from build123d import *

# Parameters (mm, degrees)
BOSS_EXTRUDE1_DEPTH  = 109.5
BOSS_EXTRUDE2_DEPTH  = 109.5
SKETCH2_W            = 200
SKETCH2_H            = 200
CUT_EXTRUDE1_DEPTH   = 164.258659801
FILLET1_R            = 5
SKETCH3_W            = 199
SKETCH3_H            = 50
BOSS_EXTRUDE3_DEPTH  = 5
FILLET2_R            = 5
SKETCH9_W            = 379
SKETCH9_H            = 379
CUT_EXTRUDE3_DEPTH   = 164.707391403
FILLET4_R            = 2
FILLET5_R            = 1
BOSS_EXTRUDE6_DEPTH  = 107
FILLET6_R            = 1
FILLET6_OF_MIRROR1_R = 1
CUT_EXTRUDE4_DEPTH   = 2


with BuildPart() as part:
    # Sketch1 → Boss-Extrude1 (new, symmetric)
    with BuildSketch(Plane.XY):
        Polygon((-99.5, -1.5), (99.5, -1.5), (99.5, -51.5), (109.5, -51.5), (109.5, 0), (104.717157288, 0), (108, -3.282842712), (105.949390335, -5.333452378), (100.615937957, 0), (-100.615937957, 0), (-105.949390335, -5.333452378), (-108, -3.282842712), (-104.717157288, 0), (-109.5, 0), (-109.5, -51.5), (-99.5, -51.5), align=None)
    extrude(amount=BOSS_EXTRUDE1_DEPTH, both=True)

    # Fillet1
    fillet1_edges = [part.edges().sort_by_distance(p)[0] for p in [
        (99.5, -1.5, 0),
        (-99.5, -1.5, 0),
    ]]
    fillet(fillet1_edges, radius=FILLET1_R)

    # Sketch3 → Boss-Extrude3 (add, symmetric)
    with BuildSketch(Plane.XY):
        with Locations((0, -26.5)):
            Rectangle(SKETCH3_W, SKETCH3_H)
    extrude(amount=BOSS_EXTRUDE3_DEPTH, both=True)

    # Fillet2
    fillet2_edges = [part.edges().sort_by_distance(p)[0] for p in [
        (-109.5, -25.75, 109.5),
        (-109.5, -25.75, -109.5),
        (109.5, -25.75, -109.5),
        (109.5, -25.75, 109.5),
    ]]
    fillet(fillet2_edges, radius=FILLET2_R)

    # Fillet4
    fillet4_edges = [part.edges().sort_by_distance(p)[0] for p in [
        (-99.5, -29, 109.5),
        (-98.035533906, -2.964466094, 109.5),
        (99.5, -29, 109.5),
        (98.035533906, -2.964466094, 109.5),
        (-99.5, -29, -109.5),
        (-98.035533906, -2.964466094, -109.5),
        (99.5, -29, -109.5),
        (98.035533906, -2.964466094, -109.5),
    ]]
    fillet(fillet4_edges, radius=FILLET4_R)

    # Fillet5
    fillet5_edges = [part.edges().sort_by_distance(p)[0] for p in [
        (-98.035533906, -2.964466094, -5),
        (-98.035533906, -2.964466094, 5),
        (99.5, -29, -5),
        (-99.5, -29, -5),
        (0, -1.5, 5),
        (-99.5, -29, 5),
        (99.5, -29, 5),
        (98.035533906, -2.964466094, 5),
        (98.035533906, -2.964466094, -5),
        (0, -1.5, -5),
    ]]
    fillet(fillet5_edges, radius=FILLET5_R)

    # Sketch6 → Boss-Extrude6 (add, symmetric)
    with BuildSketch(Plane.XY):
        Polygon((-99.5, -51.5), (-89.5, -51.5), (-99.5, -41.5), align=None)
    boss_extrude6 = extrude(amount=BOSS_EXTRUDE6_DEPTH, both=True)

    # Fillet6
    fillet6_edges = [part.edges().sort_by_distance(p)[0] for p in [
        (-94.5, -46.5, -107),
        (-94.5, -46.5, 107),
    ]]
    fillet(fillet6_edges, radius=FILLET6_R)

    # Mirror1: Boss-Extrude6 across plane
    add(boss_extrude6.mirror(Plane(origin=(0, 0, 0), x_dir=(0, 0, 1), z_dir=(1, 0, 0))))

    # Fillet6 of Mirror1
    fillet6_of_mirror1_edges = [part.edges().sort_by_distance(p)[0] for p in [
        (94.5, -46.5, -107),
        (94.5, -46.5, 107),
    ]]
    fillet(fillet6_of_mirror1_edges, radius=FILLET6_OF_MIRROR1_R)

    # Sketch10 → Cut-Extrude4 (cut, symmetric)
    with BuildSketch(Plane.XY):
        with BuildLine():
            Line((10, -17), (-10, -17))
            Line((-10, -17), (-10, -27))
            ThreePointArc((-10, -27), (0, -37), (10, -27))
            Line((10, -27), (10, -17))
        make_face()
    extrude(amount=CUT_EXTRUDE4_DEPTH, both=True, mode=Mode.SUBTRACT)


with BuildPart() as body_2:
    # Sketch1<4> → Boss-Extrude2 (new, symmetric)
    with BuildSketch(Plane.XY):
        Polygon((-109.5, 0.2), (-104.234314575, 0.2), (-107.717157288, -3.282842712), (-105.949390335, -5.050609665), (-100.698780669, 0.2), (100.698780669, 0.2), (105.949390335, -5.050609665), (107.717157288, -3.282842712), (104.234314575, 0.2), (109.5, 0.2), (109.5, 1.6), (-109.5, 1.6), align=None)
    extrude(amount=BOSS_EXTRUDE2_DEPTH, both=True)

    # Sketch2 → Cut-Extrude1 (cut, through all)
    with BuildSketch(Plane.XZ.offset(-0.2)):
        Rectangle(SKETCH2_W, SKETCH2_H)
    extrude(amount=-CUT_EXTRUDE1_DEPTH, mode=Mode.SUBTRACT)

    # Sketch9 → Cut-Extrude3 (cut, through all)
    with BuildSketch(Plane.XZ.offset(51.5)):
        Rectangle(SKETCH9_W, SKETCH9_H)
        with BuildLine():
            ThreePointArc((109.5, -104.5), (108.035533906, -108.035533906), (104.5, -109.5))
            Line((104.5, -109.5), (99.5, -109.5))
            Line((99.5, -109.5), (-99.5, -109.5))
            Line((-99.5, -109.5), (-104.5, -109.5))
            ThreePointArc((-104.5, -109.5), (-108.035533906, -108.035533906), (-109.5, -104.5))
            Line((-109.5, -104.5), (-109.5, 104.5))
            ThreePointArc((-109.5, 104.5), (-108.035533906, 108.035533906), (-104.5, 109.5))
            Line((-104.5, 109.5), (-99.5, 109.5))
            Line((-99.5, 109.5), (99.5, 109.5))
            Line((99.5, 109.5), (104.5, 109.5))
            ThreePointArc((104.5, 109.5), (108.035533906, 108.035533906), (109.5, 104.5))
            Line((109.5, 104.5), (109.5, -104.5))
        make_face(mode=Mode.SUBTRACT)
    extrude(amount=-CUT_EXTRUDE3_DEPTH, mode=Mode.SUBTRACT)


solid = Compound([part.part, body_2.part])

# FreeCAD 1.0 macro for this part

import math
import FreeCAD as App
import Part
import Sketcher
Q = App.Units.Quantity


def edges_at(feature, points):
    """Names of the edges that pass closest to the given points."""
    edges = feature.Shape.Edges
    near = lambda p: min(range(len(edges)), key=lambda i: edges[i].distToShape(Part.Vertex(*p))[0])
    return sorted({f"Edge{near(p) + 1}" for p in points})

doc = App.newDocument("Part")
params = doc.addObject("Spreadsheet::Sheet", "Params")
for row, (alias, value) in enumerate([
    ("sketch1_width", "199 mm"),
    ("sketch1_width2", "10 mm"),
    ("sketch1_height", "50 mm"),
    ("sketch1_height2", "51.5 mm"),
    ("sketch1_length", "2.9 mm"),
    ("pad1_length", "219 mm"),
    ("fillet_radius", "5 mm"),
    ("sketch2_width", "199 mm"),
    ("sketch2_height", "50 mm"),
    ("pad2_length", "10 mm"),
    ("fillet2_radius", "5 mm"),
    ("fillet3_radius", "2 mm"),
    ("fillet4_radius", "1 mm"),
    ("sketch3_width", "10 mm"),
    ("pad3_length", "214 mm"),
    ("fillet5_radius", "1 mm"),
    ("fillet6_radius", "1 mm"),
    ("sketch4_radius", "10 mm"),
    ("sketch4_height", "10 mm"),
    ("pocket1_length", "4 mm"),
    ("sketch5_width", "219 mm"),
    ("sketch5_height", "1.4 mm"),
    ("sketch5_length", "2.5 mm"),
    ("pad4_length", "219 mm"),
    ("sketch6_width", "200 mm"),
    ("sketch7_radius", "5 mm"),
    ("sketch7_width", "379 mm"),
    ("sketch7_width2", "209 mm"),
], start=1):
    params.set(f"A{row}", alias)
    params.set(f"B{row}", "=" + value)
    params.setAlias(f"B{row}", alias)

body = doc.addObject("PartDesign::Body", "Body")

sketch1 = body.newObject("Sketcher::SketchObject", "Sketch")
sketch1.AttachmentSupport = (doc.getObject("XY_Plane"), [""])
sketch1.MapMode = "FlatFace"
sketch1.addGeometry([
    Part.LineSegment(App.Vector(-99.5, -1.5, 0), App.Vector(99.5, -1.5, 0)),
    Part.LineSegment(App.Vector(99.5, -1.5, 0), App.Vector(99.5, -51.5, 0)),
    Part.LineSegment(App.Vector(99.5, -51.5, 0), App.Vector(109.5, -51.5, 0)),
    Part.LineSegment(App.Vector(109.5, -51.5, 0), App.Vector(109.5, 0, 0)),
    Part.LineSegment(App.Vector(109.5, 0, 0), App.Vector(104.7, 0, 0)),
    Part.LineSegment(App.Vector(104.7, 0, 0), App.Vector(108, -3.3, 0)),
    Part.LineSegment(App.Vector(108, -3.3, 0), App.Vector(105.9, -5.3, 0)),
    Part.LineSegment(App.Vector(105.9, -5.3, 0), App.Vector(100.6, 0, 0)),
    Part.LineSegment(App.Vector(100.6, 0, 0), App.Vector(-100.6, 0, 0)),
    Part.LineSegment(App.Vector(-100.6, 0, 0), App.Vector(-105.9, -5.3, 0)),
    Part.LineSegment(App.Vector(-105.9, -5.3, 0), App.Vector(-108, -3.3, 0)),
    Part.LineSegment(App.Vector(-108, -3.3, 0), App.Vector(-104.7, 0, 0)),
    Part.LineSegment(App.Vector(-104.7, 0, 0), App.Vector(-109.5, 0, 0)),
    Part.LineSegment(App.Vector(-109.5, 0, 0), App.Vector(-109.5, -51.5, 0)),
    Part.LineSegment(App.Vector(-109.5, -51.5, 0), App.Vector(-99.5, -51.5, 0)),
    Part.LineSegment(App.Vector(-99.5, -51.5, 0), App.Vector(-99.5, -1.5, 0)),
], False)
sketch1.addConstraint([
    Sketcher.Constraint("Coincident", 0, 2, 1, 1),
    Sketcher.Constraint("Coincident", 1, 2, 2, 1),
    Sketcher.Constraint("Coincident", 2, 2, 3, 1),
    Sketcher.Constraint("Coincident", 3, 2, 4, 1),
    Sketcher.Constraint("Coincident", 4, 2, 5, 1),
    Sketcher.Constraint("Coincident", 5, 2, 6, 1),
    Sketcher.Constraint("Coincident", 6, 2, 7, 1),
    Sketcher.Constraint("Coincident", 7, 2, 8, 1),
    Sketcher.Constraint("Coincident", 8, 2, 9, 1),
    Sketcher.Constraint("Coincident", 9, 2, 10, 1),
    Sketcher.Constraint("Coincident", 10, 2, 11, 1),
    Sketcher.Constraint("Coincident", 11, 2, 12, 1),
    Sketcher.Constraint("Coincident", 12, 2, 13, 1),
    Sketcher.Constraint("Coincident", 13, 2, 14, 1),
    Sketcher.Constraint("Coincident", 14, 2, 15, 1),
    Sketcher.Constraint("Coincident", 15, 2, 0, 1),
    Sketcher.Constraint("Horizontal", 0),
    Sketcher.Constraint("Vertical", 1),
    Sketcher.Constraint("Horizontal", 2),
    Sketcher.Constraint("Vertical", 3),
    Sketcher.Constraint("Horizontal", 4),
    Sketcher.Constraint("Horizontal", 8),
    Sketcher.Constraint("Horizontal", 12),
    Sketcher.Constraint("Vertical", 13),
    Sketcher.Constraint("Horizontal", 14),
    Sketcher.Constraint("Vertical", 15),
    Sketcher.Constraint("Symmetric", 7, 2, 8, 2, -1, 1),
    Sketcher.Constraint("Symmetric", 4, 2, 11, 2, -1, 1),
    Sketcher.Constraint("Symmetric", 6, 2, 9, 2, -2),
    Sketcher.Constraint("Symmetric", 5, 2, 10, 2, -2),
    Sketcher.Constraint("Symmetric", 3, 2, 12, 2, -2),
    Sketcher.Constraint("Symmetric", 1, 2, 14, 2, -2),
    Sketcher.Constraint("Perpendicular", 5, 6),
    Sketcher.Constraint("Perpendicular", 6, 7),
    Sketcher.Constraint("Perpendicular", 7, 9),
    Sketcher.Constraint("DistanceX", 0, 1, 0, 2, Q("199 mm")),
    Sketcher.Constraint("DistanceX", 2, 1, 2, 2, Q("10 mm")),
    Sketcher.Constraint("DistanceY", 1, 2, 1, 1, Q("50 mm")),
    Sketcher.Constraint("DistanceY", 3, 1, 3, 2, Q("51.5 mm")),
    Sketcher.Constraint("DistanceX", -1, 1, 5, 2, Q("108 mm")),
    Sketcher.Constraint("Distance", 6, Q("2.9 mm")),
    Sketcher.Constraint("Distance", 5, Q("4.642641 mm")),
])
sketch1.setExpression("Constraints[35]", "Params.sketch1_width")
sketch1.setExpression("Constraints[36]", "Params.sketch1_width2")
sketch1.setExpression("Constraints[37]", "Params.sketch1_height")
sketch1.setExpression("Constraints[38]", "Params.sketch1_height2")
sketch1.setExpression("Constraints[40]", "Params.sketch1_length")
pad1 = body.newObject("PartDesign::Pad", "Pad")
pad1.Profile = sketch1
pad1.setExpression("Length", "Params.pad1_length")
pad1.Midplane = True
doc.recompute()

fillet = body.newObject("PartDesign::Fillet", "Fillet")
fillet.Base = (pad1, edges_at(pad1, [(99.5, -1.5, 0), (-99.5, -1.5, 0)]))
fillet.setExpression("Radius", "Params.fillet_radius")

sketch2 = body.newObject("Sketcher::SketchObject", "Sketch001")
sketch2.AttachmentSupport = (doc.getObject("XY_Plane"), [""])
sketch2.MapMode = "FlatFace"
sketch2.addGeometry([
    Part.LineSegment(App.Vector(-100, -2, 0), App.Vector(-100, -52, 0)),
    Part.LineSegment(App.Vector(-100, -52, 0), App.Vector(100, -52, 0)),
    Part.LineSegment(App.Vector(100, -52, 0), App.Vector(100, -2, 0)),
    Part.LineSegment(App.Vector(100, -2, 0), App.Vector(-100, -2, 0)),
], False)
sketch2.addConstraint([
    Sketcher.Constraint("Coincident", 0, 2, 1, 1),
    Sketcher.Constraint("Coincident", 1, 2, 2, 1),
    Sketcher.Constraint("Coincident", 2, 2, 3, 1),
    Sketcher.Constraint("Coincident", 3, 2, 0, 1),
    Sketcher.Constraint("Vertical", 0),
    Sketcher.Constraint("Horizontal", 1),
    Sketcher.Constraint("Vertical", 2),
    Sketcher.Constraint("Horizontal", 3),
    Sketcher.Constraint("DistanceX", 1, 1, 1, 2, Q("199 mm")),
    Sketcher.Constraint("DistanceY", 0, 2, 0, 1, Q("50 mm")),
    Sketcher.Constraint("DistanceX", 0, 2, -1, 1, Q("99.5 mm")),
    Sketcher.Constraint("DistanceY", 0, 2, -1, 1, Q("51.5 mm")),
])
sketch2.setExpression("Constraints[8]", "Params.sketch2_width")
sketch2.setExpression("Constraints[9]", "Params.sketch2_height")
pad2 = body.newObject("PartDesign::Pad", "Pad001")
pad2.Profile = sketch2
pad2.setExpression("Length", "Params.pad2_length")
pad2.Midplane = True
doc.recompute()

fillet2 = body.newObject("PartDesign::Fillet", "Fillet001")
fillet2.Base = (pad2, edges_at(pad2, [
    (-109.5, -25.75, 109.5),
    (-109.5, -25.75, -109.5),
    (109.5, -25.75, -109.5),
    (109.5, -25.75, 109.5),
]))
fillet2.setExpression("Radius", "Params.fillet2_radius")
doc.recompute()

fillet3 = body.newObject("PartDesign::Fillet", "Fillet002")
fillet3.Base = (fillet2, edges_at(fillet2, [
    (-99.5, -29, 109.5),
    (-98.036, -2.964, 109.5),
    (99.5, -29, 109.5),
    (98.036, -2.964, 109.5),
    (-99.5, -29, -109.5),
    (-98.036, -2.964, -109.5),
    (99.5, -29, -109.5),
    (98.036, -2.964, -109.5),
]))
fillet3.setExpression("Radius", "Params.fillet3_radius")
doc.recompute()

fillet4 = body.newObject("PartDesign::Fillet", "Fillet003")
fillet4.Base = (fillet3, edges_at(fillet3, [
    (-98.036, -2.964, -5),
    (-98.036, -2.964, 5),
    (99.5, -29, -5),
    (-99.5, -29, -5),
    (0, -1.5, 5),
    (-99.5, -29, 5),
    (99.5, -29, 5),
    (98.036, -2.964, 5),
    (98.036, -2.964, -5),
    (0, -1.5, -5),
]))
fillet4.setExpression("Radius", "Params.fillet4_radius")

sketch3 = body.newObject("Sketcher::SketchObject", "Sketch002")
sketch3.AttachmentSupport = (doc.getObject("XY_Plane"), [""])
sketch3.MapMode = "FlatFace"
sketch3.addGeometry([
    Part.LineSegment(App.Vector(-100, -52, 0), App.Vector(-90, -52, 0)),
    Part.LineSegment(App.Vector(-90, -52, 0), App.Vector(-100, -42, 0)),
    Part.LineSegment(App.Vector(-100, -42, 0), App.Vector(-100, -52, 0)),
], False)
sketch3.addConstraint([
    Sketcher.Constraint("Coincident", 0, 2, 1, 1),
    Sketcher.Constraint("Coincident", 1, 2, 2, 1),
    Sketcher.Constraint("Coincident", 2, 2, 0, 1),
    Sketcher.Constraint("Horizontal", 0),
    Sketcher.Constraint("Vertical", 2),
    Sketcher.Constraint("Equal", 0, 2),
    Sketcher.Constraint("DistanceX", 0, 1, 0, 2, Q("10 mm")),
    Sketcher.Constraint("DistanceX", 0, 2, -1, 1, Q("89.5 mm")),
    Sketcher.Constraint("DistanceY", 0, 2, -1, 1, Q("51.5 mm")),
])
sketch3.setExpression("Constraints[6]", "Params.sketch3_width")
pad3 = body.newObject("PartDesign::Pad", "Pad002")
pad3.Profile = sketch3
pad3.setExpression("Length", "Params.pad3_length")
pad3.Midplane = True
doc.recompute()

fillet5 = body.newObject("PartDesign::Fillet", "Fillet004")
fillet5.Base = (pad3, edges_at(pad3, [(-94.5, -46.5, -107), (-94.5, -46.5, 107)]))
fillet5.setExpression("Radius", "Params.fillet5_radius")
doc.recompute()

mirrored = body.newObject("PartDesign::Mirrored", "Mirrored")
mirrored.Originals = [pad3]
mirrored.MirrorPlane = (doc.getObject("YZ_Plane"), [""])
body.Tip = mirrored
doc.recompute()

fillet6 = body.newObject("PartDesign::Fillet", "Fillet005")
fillet6.Base = (mirrored, edges_at(mirrored, [(94.5, -46.5, -107), (94.5, -46.5, 107)]))
fillet6.setExpression("Radius", "Params.fillet6_radius")

sketch4 = body.newObject("Sketcher::SketchObject", "Sketch003")
sketch4.AttachmentSupport = (doc.getObject("XY_Plane"), [""])
sketch4.MapMode = "FlatFace"
sketch4.addGeometry([
    Part.LineSegment(App.Vector(10, -17, 0), App.Vector(-10, -17, 0)),
    Part.LineSegment(App.Vector(-10, -17, 0), App.Vector(-10, -27, 0)),
    Part.ArcOfCircle(Part.Circle(App.Vector(0, -27, 0), App.Vector(0, 0, 1), 10), math.radians(180), math.radians(360)),
    Part.LineSegment(App.Vector(10, -27, 0), App.Vector(10, -17, 0)),
], False)
sketch4.addConstraint([
    Sketcher.Constraint("Coincident", 0, 2, 1, 1),
    Sketcher.Constraint("Tangent", 1, 2, 2, 1),
    Sketcher.Constraint("Tangent", 2, 2, 3, 1),
    Sketcher.Constraint("Coincident", 3, 2, 0, 1),
    Sketcher.Constraint("Horizontal", 0),
    Sketcher.Constraint("Vertical", 1),
    Sketcher.Constraint("Vertical", 3),
    Sketcher.Constraint("PointOnObject", 2, 3, -2),
    Sketcher.Constraint("Radius", 2, Q("10 mm")),
    Sketcher.Constraint("DistanceY", 1, 2, 1, 1, Q("10 mm")),
    Sketcher.Constraint("DistanceY", 2, 3, -1, 1, Q("27 mm")),
])
sketch4.setExpression("Constraints[8]", "Params.sketch4_radius")
sketch4.setExpression("Constraints[9]", "Params.sketch4_height")
pocket1 = body.newObject("PartDesign::Pocket", "Pocket")
pocket1.Profile = sketch4
pocket1.setExpression("Length", "Params.pocket1_length")
pocket1.Midplane = True
body2 = doc.addObject("PartDesign::Body", "Body001")

sketch5 = body2.newObject("Sketcher::SketchObject", "Sketch004")
sketch5.AttachmentSupport = (doc.getObject("XY_Plane001"), [""])
sketch5.MapMode = "FlatFace"
sketch5.addGeometry([
    Part.LineSegment(App.Vector(-109.5, 0.2, 0), App.Vector(-104.2, 0.2, 0)),
    Part.LineSegment(App.Vector(-104.2, 0.2, 0), App.Vector(-107.7, -3.3, 0)),
    Part.LineSegment(App.Vector(-107.7, -3.3, 0), App.Vector(-105.9, -5.1, 0)),
    Part.LineSegment(App.Vector(-105.9, -5.1, 0), App.Vector(-100.7, 0.2, 0)),
    Part.LineSegment(App.Vector(-100.7, 0.2, 0), App.Vector(100.7, 0.2, 0)),
    Part.LineSegment(App.Vector(100.7, 0.2, 0), App.Vector(105.9, -5.1, 0)),
    Part.LineSegment(App.Vector(105.9, -5.1, 0), App.Vector(107.7, -3.3, 0)),
    Part.LineSegment(App.Vector(107.7, -3.3, 0), App.Vector(104.2, 0.2, 0)),
    Part.LineSegment(App.Vector(104.2, 0.2, 0), App.Vector(109.5, 0.2, 0)),
    Part.LineSegment(App.Vector(109.5, 0.2, 0), App.Vector(109.5, 1.6, 0)),
    Part.LineSegment(App.Vector(109.5, 1.6, 0), App.Vector(-109.5, 1.6, 0)),
    Part.LineSegment(App.Vector(-109.5, 1.6, 0), App.Vector(-109.5, 0.2, 0)),
], False)
sketch5.addConstraint([
    Sketcher.Constraint("Coincident", 0, 2, 1, 1),
    Sketcher.Constraint("Coincident", 1, 2, 2, 1),
    Sketcher.Constraint("Coincident", 2, 2, 3, 1),
    Sketcher.Constraint("Coincident", 3, 2, 4, 1),
    Sketcher.Constraint("Coincident", 4, 2, 5, 1),
    Sketcher.Constraint("Coincident", 5, 2, 6, 1),
    Sketcher.Constraint("Coincident", 6, 2, 7, 1),
    Sketcher.Constraint("Coincident", 7, 2, 8, 1),
    Sketcher.Constraint("Coincident", 8, 2, 9, 1),
    Sketcher.Constraint("Coincident", 9, 2, 10, 1),
    Sketcher.Constraint("Coincident", 10, 2, 11, 1),
    Sketcher.Constraint("Coincident", 11, 2, 0, 1),
    Sketcher.Constraint("Horizontal", 0),
    Sketcher.Constraint("Horizontal", 4),
    Sketcher.Constraint("Horizontal", 8),
    Sketcher.Constraint("Vertical", 9),
    Sketcher.Constraint("Horizontal", 10),
    Sketcher.Constraint("Vertical", 11),
    Sketcher.Constraint("Symmetric", 2, 2, 5, 2, -2),
    Sketcher.Constraint("Symmetric", 1, 2, 6, 2, -2),
    Sketcher.Constraint("Symmetric", 0, 2, 7, 2, -2),
    Sketcher.Constraint("Perpendicular", 1, 2),
    Sketcher.Constraint("Perpendicular", 2, 3),
    Sketcher.Constraint("Perpendicular", 3, 5),
    Sketcher.Constraint("Perpendicular", 5, 6),
    Sketcher.Constraint("Horizontal", 0, 2, 3, 2),
    Sketcher.Constraint("Equal", 0, 8),
    Sketcher.Constraint("DistanceX", 10, 2, 10, 1, Q("219 mm")),
    Sketcher.Constraint("DistanceY", 9, 1, 9, 2, Q("1.4 mm")),
    Sketcher.Constraint("Distance", 2, Q("2.5 mm")),
    Sketcher.Constraint("DistanceY", -1, 1, 0, 2, Q("0.2 mm")),
    Sketcher.Constraint("DistanceX", 4, 1, 4, 2, Q("201.397561 mm")),
    Sketcher.Constraint("DistanceX", 2, 2, -1, 1, Q("105.94939 mm")),
])
sketch5.setExpression("Constraints[27]", "Params.sketch5_width")
sketch5.setExpression("Constraints[28]", "Params.sketch5_height")
sketch5.setExpression("Constraints[29]", "Params.sketch5_length")
pad4 = body2.newObject("PartDesign::Pad", "Pad003")
pad4.Profile = sketch5
pad4.setExpression("Length", "Params.pad4_length")
pad4.Midplane = True

sketch6 = body2.newObject("Sketcher::SketchObject", "Sketch005")
sketch6.AttachmentSupport = (doc.getObject("XZ_Plane001"), [""])
sketch6.MapMode = "FlatFace"
sketch6.AttachmentOffset = App.Placement(App.Vector(0, 0, -0.2), App.Rotation())
sketch6.addGeometry([
    Part.LineSegment(App.Vector(-100, 100, 0), App.Vector(-100, -100, 0)),
    Part.LineSegment(App.Vector(-100, -100, 0), App.Vector(100, -100, 0)),
    Part.LineSegment(App.Vector(100, -100, 0), App.Vector(100, 100, 0)),
    Part.LineSegment(App.Vector(100, 100, 0), App.Vector(-100, 100, 0)),
], False)
sketch6.addConstraint([
    Sketcher.Constraint("Coincident", 0, 2, 1, 1),
    Sketcher.Constraint("Coincident", 1, 2, 2, 1),
    Sketcher.Constraint("Coincident", 2, 2, 3, 1),
    Sketcher.Constraint("Coincident", 3, 2, 0, 1),
    Sketcher.Constraint("Vertical", 0),
    Sketcher.Constraint("Horizontal", 1),
    Sketcher.Constraint("Vertical", 2),
    Sketcher.Constraint("Horizontal", 3),
    Sketcher.Constraint("Symmetric", 0, 2, 2, 2, -1, 1),
    Sketcher.Constraint("Equal", 3, 0),
    Sketcher.Constraint("DistanceX", 1, 1, 1, 2, Q("200 mm")),
])
sketch6.setExpression("Constraints[10]", "Params.sketch6_width")
pocket2 = body2.newObject("PartDesign::Pocket", "Pocket001")
pocket2.Profile = sketch6
pocket2.Type = "ThroughAll"

sketch7 = body2.newObject("Sketcher::SketchObject", "Sketch006")
sketch7.AttachmentSupport = (doc.getObject("XZ_Plane001"), [""])
sketch7.MapMode = "FlatFace"
sketch7.AttachmentOffset = App.Placement(App.Vector(0, 0, 51.5), App.Rotation())
sketch7.addGeometry([
    Part.LineSegment(App.Vector(-190, 190, 0), App.Vector(-190, -190, 0)),
    Part.LineSegment(App.Vector(-190, -190, 0), App.Vector(190, -190, 0)),
    Part.LineSegment(App.Vector(190, -190, 0), App.Vector(190, 190, 0)),
    Part.LineSegment(App.Vector(190, 190, 0), App.Vector(-190, 190, 0)),
    Part.LineSegment(App.Vector(110, 104, 0), App.Vector(110, -104, 0)),
    Part.ArcOfCircle(Part.Circle(App.Vector(104, -104, 0), App.Vector(0, 0, 1), 5), math.radians(-90), math.radians(0)),
    Part.LineSegment(App.Vector(104, -110, 0), App.Vector(-104, -110, 0)),
    Part.ArcOfCircle(Part.Circle(App.Vector(-104, -104, 0), App.Vector(0, 0, 1), 5), math.radians(180), math.radians(270)),
    Part.LineSegment(App.Vector(-110, -104, 0), App.Vector(-110, 104, 0)),
    Part.ArcOfCircle(Part.Circle(App.Vector(-104, 104, 0), App.Vector(0, 0, 1), 5), math.radians(90), math.radians(180)),
    Part.LineSegment(App.Vector(-104, 110, 0), App.Vector(104, 110, 0)),
    Part.ArcOfCircle(Part.Circle(App.Vector(104, 104, 0), App.Vector(0, 0, 1), 5), math.radians(0), math.radians(90)),
], False)
sketch7.addConstraint([
    Sketcher.Constraint("Coincident", 0, 2, 1, 1),
    Sketcher.Constraint("Coincident", 1, 2, 2, 1),
    Sketcher.Constraint("Coincident", 2, 2, 3, 1),
    Sketcher.Constraint("Coincident", 3, 2, 0, 1),
    Sketcher.Constraint("Tangent", 4, 2, 5, 2),
    Sketcher.Constraint("Tangent", 5, 1, 6, 1),
    Sketcher.Constraint("Tangent", 6, 2, 7, 2),
    Sketcher.Constraint("Tangent", 7, 1, 8, 1),
    Sketcher.Constraint("Tangent", 8, 2, 9, 2),
    Sketcher.Constraint("Tangent", 9, 1, 10, 1),
    Sketcher.Constraint("Tangent", 10, 2, 11, 2),
    Sketcher.Constraint("Tangent", 11, 1, 4, 1),
    Sketcher.Constraint("Vertical", 0),
    Sketcher.Constraint("Horizontal", 1),
    Sketcher.Constraint("Vertical", 2),
    Sketcher.Constraint("Horizontal", 3),
    Sketcher.Constraint("Vertical", 4),
    Sketcher.Constraint("Horizontal", 6),
    Sketcher.Constraint("Vertical", 8),
    Sketcher.Constraint("Horizontal", 10),
    Sketcher.Constraint("Equal", 5, 7),
    Sketcher.Constraint("Equal", 7, 9),
    Sketcher.Constraint("Equal", 9, 11),
    Sketcher.Constraint("Symmetric", 5, 3, 9, 3, -1, 1),
    Sketcher.Constraint("Symmetric", 0, 2, 2, 2, -1, 1),
    Sketcher.Constraint("Equal", 3, 0),
    Sketcher.Constraint("Equal", 10, 4),
    Sketcher.Constraint("Radius", 5, Q("5 mm")),
    Sketcher.Constraint("DistanceX", 1, 1, 1, 2, Q("379 mm")),
    Sketcher.Constraint("DistanceX", 6, 2, 6, 1, Q("209 mm")),
])
sketch7.setExpression("Constraints[27]", "Params.sketch7_radius")
sketch7.setExpression("Constraints[28]", "Params.sketch7_width")
sketch7.setExpression("Constraints[29]", "Params.sketch7_width2")
pocket3 = body2.newObject("PartDesign::Pocket", "Pocket002")
pocket3.Profile = sketch7
pocket3.Type = "ThroughAll"

doc.recompute()
